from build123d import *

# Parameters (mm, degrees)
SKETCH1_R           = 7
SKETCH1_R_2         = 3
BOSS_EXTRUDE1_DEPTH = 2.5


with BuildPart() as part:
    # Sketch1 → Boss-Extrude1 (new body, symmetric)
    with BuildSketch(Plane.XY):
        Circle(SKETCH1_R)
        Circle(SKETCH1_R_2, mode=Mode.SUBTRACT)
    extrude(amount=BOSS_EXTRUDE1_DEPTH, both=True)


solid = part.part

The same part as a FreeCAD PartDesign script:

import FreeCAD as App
import Part
import Sketcher
from FreeCAD import Vector

doc = App.newDocument("Part")
params = doc.addObject("Spreadsheet::Sheet", "Params")
for row, (alias, value) in enumerate([
    ("sketch1_diameter", "14 mm"),
    ("sketch1_diameter2", "6 mm"),
    ("pad1_length", "5 mm"),
], start=1):
    params.set(f"A{row}", alias)
    params.set(f"B{row}", "=" + value)
    params.setAlias(f"B{row}", alias)

body = doc.addObject("PartDesign::Body", "Body")

sketch1 = body.newObject("Sketcher::SketchObject", "Sketch")
sketch1.AttachmentSupport = (doc.getObject("XY_Plane"), [""])
sketch1.MapMode = "FlatFace"
sketch1.addGeometry([
    Part.Circle(Vector(0, 0, 0), Vector(0, 0, 1), 7),
    Part.Circle(Vector(0, 0, 0), Vector(0, 0, 1), 3),
], False)
sketch1.addConstraint([
    Sketcher.Constraint("Coincident", 0, 3, -1, 1),
    Sketcher.Constraint("Coincident", 1, 3, -1, 1),
    Sketcher.Constraint("Diameter", 0, 14.0),
    Sketcher.Constraint("Diameter", 1, 6.0),
])
sketch1.setExpression("Constraints[2]", "Params.sketch1_diameter")
sketch1.setExpression("Constraints[3]", "Params.sketch1_diameter2")
pad1 = body.newObject("PartDesign::Pad", "Pad")
pad1.Profile = sketch1
pad1.setExpression("Length", "Params.pad1_length")
pad1.Midplane = True

doc.recompute()
